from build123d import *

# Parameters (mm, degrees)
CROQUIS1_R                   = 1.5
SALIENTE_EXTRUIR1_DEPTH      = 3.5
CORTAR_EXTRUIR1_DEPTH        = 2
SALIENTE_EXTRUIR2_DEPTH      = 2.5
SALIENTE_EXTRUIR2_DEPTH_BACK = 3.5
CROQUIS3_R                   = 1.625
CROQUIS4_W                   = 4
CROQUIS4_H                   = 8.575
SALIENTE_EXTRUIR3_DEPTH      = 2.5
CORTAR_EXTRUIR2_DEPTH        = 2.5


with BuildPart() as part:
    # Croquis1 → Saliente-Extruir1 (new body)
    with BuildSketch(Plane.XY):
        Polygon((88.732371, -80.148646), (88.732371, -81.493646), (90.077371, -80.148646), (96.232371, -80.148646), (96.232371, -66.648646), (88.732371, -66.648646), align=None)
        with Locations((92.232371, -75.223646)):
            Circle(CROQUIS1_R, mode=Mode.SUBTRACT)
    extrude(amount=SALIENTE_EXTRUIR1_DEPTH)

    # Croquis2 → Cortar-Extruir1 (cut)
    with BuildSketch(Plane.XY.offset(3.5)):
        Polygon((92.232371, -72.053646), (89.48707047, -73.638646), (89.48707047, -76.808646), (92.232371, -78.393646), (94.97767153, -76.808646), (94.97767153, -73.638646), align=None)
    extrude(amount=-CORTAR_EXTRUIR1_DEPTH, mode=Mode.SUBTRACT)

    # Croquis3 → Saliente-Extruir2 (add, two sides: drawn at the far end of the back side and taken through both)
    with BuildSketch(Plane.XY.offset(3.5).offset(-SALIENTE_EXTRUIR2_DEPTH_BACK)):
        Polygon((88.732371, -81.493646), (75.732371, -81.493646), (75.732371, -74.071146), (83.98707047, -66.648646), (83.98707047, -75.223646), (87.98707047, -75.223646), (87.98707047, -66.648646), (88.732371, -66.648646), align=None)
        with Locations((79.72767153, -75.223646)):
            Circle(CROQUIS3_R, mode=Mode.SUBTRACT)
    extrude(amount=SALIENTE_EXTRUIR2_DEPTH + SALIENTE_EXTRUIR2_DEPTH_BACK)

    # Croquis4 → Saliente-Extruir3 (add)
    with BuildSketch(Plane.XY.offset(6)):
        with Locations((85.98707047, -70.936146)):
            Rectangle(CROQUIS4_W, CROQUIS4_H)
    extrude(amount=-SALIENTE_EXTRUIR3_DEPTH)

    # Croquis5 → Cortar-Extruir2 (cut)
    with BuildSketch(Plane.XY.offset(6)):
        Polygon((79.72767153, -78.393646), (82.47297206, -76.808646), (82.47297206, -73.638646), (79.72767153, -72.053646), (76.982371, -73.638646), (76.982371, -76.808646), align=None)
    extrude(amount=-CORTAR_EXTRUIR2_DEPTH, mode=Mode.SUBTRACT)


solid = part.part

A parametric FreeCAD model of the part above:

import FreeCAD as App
import Part
import Sketcher

V = App.Vector
Q = App.Units.Quantity


def add_polygon(sketch, points):
    """Adds a closed chain of lines whose ends are joined by coincident constraints."""
    first, n = sketch.GeometryCount, len(points)
    for a, b in zip(points, points[1:] + points[:1]):
        sketch.addGeometry(Part.LineSegment(App.Vector(*a, 0), App.Vector(*b, 0)), False)
    for i in range(n):
        sketch.addConstraint(Sketcher.Constraint("Coincident", first + i, 2, first + (i + 1) % n, 1))

doc = App.newDocument("Part")
body = doc.addObject("PartDesign::Body", "Body")

sketch1 = doc.addObject("Sketcher::SketchObject", "Sketch")
body.addObject(sketch1)
sketch1.AttachmentSupport = (doc.XY_Plane, [""])
sketch1.MapMode = "FlatFace"
add_polygon(sketch1, [(88.732371, -81.493646), (90.077371, -80.148646), (96.232371, -80.148646), (96.232371, -66.648646), (88.732371, -66.648646)])
sketch1.addGeometry(Part.Circle(V(92.232371, -75.223646, 0), V(0, 0, 1), 1.5), False)
sketch1.addConstraint(Sketcher.Constraint("Horizontal", 1))
sketch1.addConstraint(Sketcher.Constraint("Vertical", 2))
sketch1.addConstraint(Sketcher.Constraint("Horizontal", 3))
sketch1.addConstraint(Sketcher.Constraint("Vertical", 4))
sketch1.addConstraint(Sketcher.Constraint("Diameter", 5, 3.0))
sketch1.addConstraint(Sketcher.Constraint("Angle", 0, Q("45 deg")))
sketch1.addConstraint(Sketcher.Constraint("DistanceX", 3, 2, 3, 1, 7.5))
sketch1.addConstraint(Sketcher.Constraint("DistanceY", 2, 1, 2, 2, 13.5))
sketch1.addConstraint(Sketcher.Constraint("DistanceX", 5, 3, 1, 2, 4.0))
sketch1.addConstraint(Sketcher.Constraint("DistanceX", 1, 1, 1, 2, 6.155))
sketch1.addConstraint(Sketcher.Constraint("DistanceY", 4, 2, 5, 3, 6.27))
sketch1.addConstraint(Sketcher.Constraint("DistanceX", -1, 1, 5, 3, 92.232371))
sketch1.addConstraint(Sketcher.Constraint("DistanceY", 5, 3, -1, 1, 75.223646))
pad1 = doc.addObject("PartDesign::Pad", "Pad")
body.addObject(pad1)
pad1.Profile = sketch1
pad1.Length = 3.5

sketch2 = doc.addObject("Sketcher::SketchObject", "Sketch001")
body.addObject(sketch2)
sketch2.AttachmentSupport = (doc.XY_Plane, [""])
sketch2.MapMode = "FlatFace"
sketch2.AttachmentOffset = App.Placement(V(0, 0, 3.5), App.Rotation())
add_polygon(sketch2, [(92.232371, -72.053646), (89.48707, -73.638646), (89.48707, -76.808646), (92.232371, -78.393646), (94.977672, -76.808646), (94.977672, -73.638646)])
sketch2.addConstraint(Sketcher.Constraint("Vertical", 1))
sketch2.addConstraint(Sketcher.Constraint("Vertical", 4))
sketch2.addConstraint(Sketcher.Constraint("Parallel", 0, 3))
sketch2.addConstraint(Sketcher.Constraint("Parallel", 2, 5))
sketch2.addConstraint(Sketcher.Constraint("Horizontal", 1, 2, 3, 2))
sketch2.addConstraint(Sketcher.Constraint("Horizontal", 0, 2, 4, 2))
sketch2.addConstraint(Sketcher.Constraint("Vertical", 2, 2, 5, 2))
sketch2.addConstraint(Sketcher.Constraint("Angle", 0, Q("-150 deg")))
sketch2.addConstraint(Sketcher.Constraint("DistanceY", 1, 2, 1, 1, 3.17))
sketch2.addConstraint(Sketcher.Constraint("Distance", 0, 3.17))
sketch2.addConstraint(Sketcher.Constraint("DistanceX", -1, 1, 0, 2, 89.48707))
sketch2.addConstraint(Sketcher.Constraint("DistanceY", 0, 2, -1, 1, 73.638646))
pocket1 = doc.addObject("PartDesign::Pocket", "Pocket")
body.addObject(pocket1)
pocket1.Profile = sketch2
pocket1.Length = 2

sketch3 = doc.addObject("Sketcher::SketchObject", "Sketch002")
body.addObject(sketch3)
sketch3.AttachmentSupport = (doc.XY_Plane, [""])
sketch3.MapMode = "FlatFace"
sketch3.AttachmentOffset = App.Placement(V(0, 0, 3.5), App.Rotation())
add_polygon(sketch3, [(75.732371, -81.493646), (88.732371, -81.493646), (88.732371, -66.648646), (87.98707, -66.648646), (87.98707, -75.223646), (83.98707, -75.223646), (83.98707, -66.648646), (75.732371, -74.071146)])
sketch3.addGeometry(Part.Circle(V(79.727672, -75.223646, 0), V(0, 0, 1), 1.625), False)
sketch3.addConstraint(Sketcher.Constraint("Horizontal", 0))
sketch3.addConstraint(Sketcher.Constraint("Vertical", 1))
sketch3.addConstraint(Sketcher.Constraint("Horizontal", 2))
sketch3.addConstraint(Sketcher.Constraint("Vertical", 3))
sketch3.addConstraint(Sketcher.Constraint("Horizontal", 4))
sketch3.addConstraint(Sketcher.Constraint("Vertical", 5))
sketch3.addConstraint(Sketcher.Constraint("Vertical", 7))
sketch3.addConstraint(Sketcher.Constraint("Horizontal", 8, 3, 3, 2))
sketch3.addConstraint(Sketcher.Constraint("Horizontal", 2, 2, 5, 2))
sketch3.addConstraint(Sketcher.Constraint("Diameter", 8, 3.25))
sketch3.addConstraint(Sketcher.Constraint("DistanceX", 0, 1, 0, 2, 13.0))
sketch3.addConstraint(Sketcher.Constraint("DistanceX", 4, 2, 4, 1, 4.0))
sketch3.addConstraint(Sketcher.Constraint("DistanceY", 1, 1, 1, 2, 14.845))
sketch3.addConstraint(Sketcher.Constraint("DistanceY", 3, 2, 3, 1, 8.575))
sketch3.addConstraint(Sketcher.Constraint("DistanceX", 2, 2, 2, 1, 0.745301))
sketch3.addConstraint(Sketcher.Constraint("DistanceY", 7, 2, 7, 1, 7.4225))
sketch3.addConstraint(Sketcher.Constraint("DistanceX", 8, 3, 0, 2, 9.004699))
sketch3.addConstraint(Sketcher.Constraint("DistanceX", -1, 1, 8, 3, 79.727672))
sketch3.addConstraint(Sketcher.Constraint("DistanceY", 8, 3, -1, 1, 75.223646))
pad2 = doc.addObject("PartDesign::Pad", "Pad001")
body.addObject(pad2)
pad2.Profile = sketch3
pad2.Type = "TwoLengths"
pad2.Length = 2.5
pad2.Length2 = 3.5

sketch4 = doc.addObject("Sketcher::SketchObject", "Sketch003")
body.addObject(sketch4)
sketch4.AttachmentSupport = (doc.XY_Plane, [""])
sketch4.MapMode = "FlatFace"
sketch4.AttachmentOffset = App.Placement(V(0, 0, 6), App.Rotation())
add_polygon(sketch4, [(83.98707, -66.648646), (83.98707, -75.223646), (87.98707, -75.223646), (87.98707, -66.648646)])
sketch4.addConstraint(Sketcher.Constraint("Vertical", 0))
sketch4.addConstraint(Sketcher.Constraint("Horizontal", 1))
sketch4.addConstraint(Sketcher.Constraint("Vertical", 2))
sketch4.addConstraint(Sketcher.Constraint("Horizontal", 3))
sketch4.addConstraint(Sketcher.Constraint("DistanceX", 1, 1, 1, 2, 4.0))
sketch4.addConstraint(Sketcher.Constraint("DistanceY", 0, 2, 0, 1, 8.575))
sketch4.addConstraint(Sketcher.Constraint("DistanceX", -1, 1, 0, 2, 83.98707))
sketch4.addConstraint(Sketcher.Constraint("DistanceY", 0, 2, -1, 1, 75.223646))
pad3 = doc.addObject("PartDesign::Pad", "Pad002")
body.addObject(pad3)
pad3.Profile = sketch4
pad3.Length = 2.5
pad3.Reversed = True

sketch5 = doc.addObject("Sketcher::SketchObject", "Sketch004")
body.addObject(sketch5)
sketch5.AttachmentSupport = (doc.XY_Plane, [""])
sketch5.MapMode = "FlatFace"
sketch5.AttachmentOffset = App.Placement(V(0, 0, 6), App.Rotation())
add_polygon(sketch5, [(79.727672, -78.393646), (82.472972, -76.808646), (82.472972, -73.638646), (79.727672, -72.053646), (76.982371, -73.638646), (76.982371, -76.808646)])
sketch5.addConstraint(Sketcher.Constraint("Vertical", 1))
sketch5.addConstraint(Sketcher.Constraint("Vertical", 4))
sketch5.addConstraint(Sketcher.Constraint("Parallel", 0, 3))
sketch5.addConstraint(Sketcher.Constraint("Parallel", 2, 5))
sketch5.addConstraint(Sketcher.Constraint("Horizontal", 1, 2, 3, 2))
sketch5.addConstraint(Sketcher.Constraint("Horizontal", 0, 2, 4, 2))
sketch5.addConstraint(Sketcher.Constraint("Vertical", 2, 2, 5, 2))
sketch5.addConstraint(Sketcher.Constraint("Angle", 0, Q("30 deg")))
sketch5.addConstraint(Sketcher.Constraint("DistanceY", 1, 1, 1, 2, 3.17))
sketch5.addConstraint(Sketcher.Constraint("Distance", 0, 3.17))
sketch5.addConstraint(Sketcher.Constraint("DistanceX", -1, 1, 2, 2, 79.727672))
sketch5.addConstraint(Sketcher.Constraint("DistanceY", 0, 2, -1, 1, 76.808646))
pocket2 = doc.addObject("PartDesign::Pocket", "Pocket001")
body.addObject(pocket2)
pocket2.Profile = sketch5
pocket2.Length = 2.5

doc.recompute()
